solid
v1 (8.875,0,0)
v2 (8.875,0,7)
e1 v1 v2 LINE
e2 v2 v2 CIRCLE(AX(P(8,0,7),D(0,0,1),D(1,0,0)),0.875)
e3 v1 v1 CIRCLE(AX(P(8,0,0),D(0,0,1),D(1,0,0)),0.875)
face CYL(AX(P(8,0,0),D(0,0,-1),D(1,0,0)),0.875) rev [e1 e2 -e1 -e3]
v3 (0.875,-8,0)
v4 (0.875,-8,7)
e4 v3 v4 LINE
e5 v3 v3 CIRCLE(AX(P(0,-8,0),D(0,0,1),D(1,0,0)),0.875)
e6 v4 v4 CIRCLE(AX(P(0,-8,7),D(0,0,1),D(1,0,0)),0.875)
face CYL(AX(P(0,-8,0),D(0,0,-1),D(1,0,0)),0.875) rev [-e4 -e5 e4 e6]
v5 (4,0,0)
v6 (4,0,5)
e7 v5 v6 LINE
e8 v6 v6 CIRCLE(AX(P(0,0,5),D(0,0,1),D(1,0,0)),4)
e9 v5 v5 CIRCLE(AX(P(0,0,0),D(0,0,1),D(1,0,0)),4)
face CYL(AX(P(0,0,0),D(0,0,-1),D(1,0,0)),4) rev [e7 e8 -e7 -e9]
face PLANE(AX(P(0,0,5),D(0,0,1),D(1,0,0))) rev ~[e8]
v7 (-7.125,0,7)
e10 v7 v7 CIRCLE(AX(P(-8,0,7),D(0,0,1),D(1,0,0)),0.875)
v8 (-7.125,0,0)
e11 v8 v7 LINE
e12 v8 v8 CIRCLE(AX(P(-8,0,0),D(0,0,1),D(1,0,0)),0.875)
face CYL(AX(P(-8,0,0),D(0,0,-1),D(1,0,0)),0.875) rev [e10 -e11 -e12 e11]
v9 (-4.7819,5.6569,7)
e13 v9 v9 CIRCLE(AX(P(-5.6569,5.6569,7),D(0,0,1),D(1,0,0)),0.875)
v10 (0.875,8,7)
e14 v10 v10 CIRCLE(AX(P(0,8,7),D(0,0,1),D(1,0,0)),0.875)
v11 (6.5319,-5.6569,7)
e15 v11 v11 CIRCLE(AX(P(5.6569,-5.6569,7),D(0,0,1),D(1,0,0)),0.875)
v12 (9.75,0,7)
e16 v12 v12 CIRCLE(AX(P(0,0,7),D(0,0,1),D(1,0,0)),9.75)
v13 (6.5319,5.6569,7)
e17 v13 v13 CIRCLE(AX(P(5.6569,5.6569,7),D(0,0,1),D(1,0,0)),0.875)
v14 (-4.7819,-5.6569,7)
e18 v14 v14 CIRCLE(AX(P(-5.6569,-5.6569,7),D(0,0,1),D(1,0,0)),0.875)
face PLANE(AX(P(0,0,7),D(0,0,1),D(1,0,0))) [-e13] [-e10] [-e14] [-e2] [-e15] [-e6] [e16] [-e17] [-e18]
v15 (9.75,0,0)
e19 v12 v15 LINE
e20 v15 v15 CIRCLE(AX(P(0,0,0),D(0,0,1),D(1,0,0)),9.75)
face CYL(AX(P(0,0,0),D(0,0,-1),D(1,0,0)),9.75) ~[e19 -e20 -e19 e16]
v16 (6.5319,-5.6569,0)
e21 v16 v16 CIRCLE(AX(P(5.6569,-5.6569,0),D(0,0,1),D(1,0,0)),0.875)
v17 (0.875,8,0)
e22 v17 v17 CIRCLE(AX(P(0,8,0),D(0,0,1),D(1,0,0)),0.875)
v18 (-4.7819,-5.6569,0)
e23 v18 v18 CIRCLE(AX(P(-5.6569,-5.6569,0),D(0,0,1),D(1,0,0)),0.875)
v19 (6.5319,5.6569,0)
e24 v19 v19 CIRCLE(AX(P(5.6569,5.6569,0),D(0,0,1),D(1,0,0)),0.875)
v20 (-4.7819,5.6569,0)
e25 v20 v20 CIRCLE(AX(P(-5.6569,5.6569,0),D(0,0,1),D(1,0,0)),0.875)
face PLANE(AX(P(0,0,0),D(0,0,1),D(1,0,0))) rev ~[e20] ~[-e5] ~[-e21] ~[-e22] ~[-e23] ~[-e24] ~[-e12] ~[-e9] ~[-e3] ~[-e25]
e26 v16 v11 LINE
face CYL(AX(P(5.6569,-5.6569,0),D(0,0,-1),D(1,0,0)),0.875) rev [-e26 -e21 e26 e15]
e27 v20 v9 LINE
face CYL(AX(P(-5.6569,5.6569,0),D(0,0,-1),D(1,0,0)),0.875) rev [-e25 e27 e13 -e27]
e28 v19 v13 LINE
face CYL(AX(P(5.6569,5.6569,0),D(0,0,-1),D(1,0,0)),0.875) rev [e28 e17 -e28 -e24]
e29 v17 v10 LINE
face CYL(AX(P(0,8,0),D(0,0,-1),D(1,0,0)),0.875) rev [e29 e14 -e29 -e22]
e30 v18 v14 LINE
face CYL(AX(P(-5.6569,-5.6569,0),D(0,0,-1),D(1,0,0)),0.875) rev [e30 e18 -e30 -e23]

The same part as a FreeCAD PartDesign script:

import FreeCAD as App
import Part
import Sketcher

V = App.Vector

doc = App.newDocument("Part")
body = doc.addObject("PartDesign::Body", "Body")

# Sketch on XY plane
sketch1 = body.newObject("Sketcher::SketchObject", "Sketch")
sketch1.AttachmentSupport = (doc.getObject("XY_Plane"), [""])
sketch1.MapMode = "FlatFace"
sketch1.addGeometry(Part.Circle(V(0, 0, 0), V(0, 0, 1), 9.8), False)
sketch1.addGeometry(Part.Circle(V(-5.7, -5.7, 0), V(0, 0, 1), 0.9), False)
sketch1.addGeometry(Part.Circle(V(0, -8, 0), V(0, 0, 1), 0.9), False)
sketch1.addGeometry(Part.Circle(V(5.7, -5.7, 0), V(0, 0, 1), 0.9), False)
sketch1.addGeometry(Part.Circle(V(-8, 0, 0), V(0, 0, 1), 0.9), False)
sketch1.addGeometry(Part.Circle(V(-5.7, 5.7, 0), V(0, 0, 1), 0.9), False)
sketch1.addGeometry(Part.Circle(V(0, 0, 0), V(0, 0, 1), 4), False)
sketch1.addGeometry(Part.Circle(V(8, 0, 0), V(0, 0, 1), 0.9), False)
sketch1.addGeometry(Part.Circle(V(0, 8, 0), V(0, 0, 1), 0.9), False)
sketch1.addGeometry(Part.Circle(V(5.7, 5.7, 0), V(0, 0, 1), 0.9), False)
sketch1.addConstraint(Sketcher.Constraint("Coincident", 0, 3, -1, 1))
sketch1.addConstraint(Sketcher.Constraint("Coincident", 6, 3, -1, 1))
sketch1.addConstraint(Sketcher.Constraint("Equal", 1, 2))
sketch1.addConstraint(Sketcher.Constraint("Equal", 2, 3))
sketch1.addConstraint(Sketcher.Constraint("Equal", 3, 4))
sketch1.addConstraint(Sketcher.Constraint("Equal", 4, 5))
sketch1.addConstraint(Sketcher.Constraint("Equal", 5, 7))
sketch1.addConstraint(Sketcher.Constraint("Equal", 7, 8))
sketch1.addConstraint(Sketcher.Constraint("Equal", 8, 9))
sketch1.addConstraint(Sketcher.Constraint("Symmetric", 3, 3, 5, 3, -1, 1))
sketch1.addConstraint(Sketcher.Constraint("Symmetric", 4, 3, 7, 3, -1, 1))
sketch1.addConstraint(Sketcher.Constraint("Symmetric", 2, 3, 8, 3, -1, 1))
sketch1.addConstraint(Sketcher.Constraint("Symmetric", 1, 3, 9, 3, -1, 1))
sketch1.addConstraint(Sketcher.Constraint("Symmetric", 1, 3, 3, 3, -2))
sketch1.addConstraint(Sketcher.Constraint("PointOnObject", 2, 3, -2))
sketch1.addConstraint(Sketcher.Constraint("PointOnObject", 4, 3, -1))
sketch1.addConstraint(Sketcher.Constraint("Diameter", 6, 8.0))
sketch1.addConstraint(Sketcher.Constraint("Diameter", 0, 19.5))
sketch1.addConstraint(Sketcher.Constraint("Diameter", 1, 1.75))
sketch1.addConstraint(Sketcher.Constraint("DistanceY", 2, 3, -1, 1, 8.0))
sketch1.addConstraint(Sketcher.Constraint("DistanceX", 4, 3, -1, 1, 8.0))
sketch1.addConstraint(Sketcher.Constraint("DistanceX", 1, 3, -1, 1, 5.657))
sketch1.addConstraint(Sketcher.Constraint("DistanceY", 1, 3, -1, 1, 5.657))
pad1 = body.newObject("PartDesign::Pad", "Pad")
pad1.Profile = sketch1
pad1.Length = 5

# Sketch on XY plane
sketch2 = body.newObject("Sketcher::SketchObject", "Sketch001")
sketch2.AttachmentSupport = (doc.getObject("XY_Plane"), [""])
sketch2.MapMode = "FlatFace"
sketch2.AttachmentOffset = App.Placement(V(0, 0, 5), App.Rotation())
sketch2.addGeometry(Part.Circle(V(0, 0, 0), V(0, 0, 1), 9.8), False)
sketch2.addGeometry(Part.Circle(V(-5.7, -5.7, 0), V(0, 0, 1), 0.9), False)
sketch2.addGeometry(Part.Circle(V(0, -8, 0), V(0, 0, 1), 0.9), False)
sketch2.addGeometry(Part.Circle(V(5.7, -5.7, 0), V(0, 0, 1), 0.9), False)
sketch2.addGeometry(Part.Circle(V(-8, 0, 0), V(0, 0, 1), 0.9), False)
sketch2.addGeometry(Part.Circle(V(-5.7, 5.7, 0), V(0, 0, 1), 0.9), False)
sketch2.addGeometry(Part.Circle(V(8, 0, 0), V(0, 0, 1), 0.9), False)
sketch2.addGeometry(Part.Circle(V(0, 8, 0), V(0, 0, 1), 0.9), False)
sketch2.addGeometry(Part.Circle(V(5.7, 5.7, 0), V(0, 0, 1), 0.9), False)
sketch2.addConstraint(Sketcher.Constraint("Coincident", 0, 3, -1, 1))
sketch2.addConstraint(Sketcher.Constraint("Equal", 1, 2))
sketch2.addConstraint(Sketcher.Constraint("Equal", 2, 3))
sketch2.addConstraint(Sketcher.Constraint("Equal", 3, 4))
sketch2.addConstraint(Sketcher.Constraint("Equal", 4, 5))
sketch2.addConstraint(Sketcher.Constraint("Equal", 5, 6))
sketch2.addConstraint(Sketcher.Constraint("Equal", 6, 7))
sketch2.addConstraint(Sketcher.Constraint("Equal", 7, 8))
sketch2.addConstraint(Sketcher.Constraint("Symmetric", 3, 3, 5, 3, -1, 1))
sketch2.addConstraint(Sketcher.Constraint("Symmetric", 4, 3, 6, 3, -1, 1))
sketch2.addConstraint(Sketcher.Constraint("Symmetric", 2, 3, 7, 3, -1, 1))
sketch2.addConstraint(Sketcher.Constraint("Symmetric", 1, 3, 8, 3, -1, 1))
sketch2.addConstraint(Sketcher.Constraint("Symmetric", 1, 3, 3, 3, -2))
sketch2.addConstraint(Sketcher.Constraint("PointOnObject", 2, 3, -2))
sketch2.addConstraint(Sketcher.Constraint("PointOnObject", 4, 3, -1))
sketch2.addConstraint(Sketcher.Constraint("Diameter", 0, 19.5))
sketch2.addConstraint(Sketcher.Constraint("Diameter", 1, 1.75))
sketch2.addConstraint(Sketcher.Constraint("DistanceY", 2, 3, -1, 1, 8.0))
sketch2.addConstraint(Sketcher.Constraint("DistanceX", 4, 3, -1, 1, 8.0))
sketch2.addConstraint(Sketcher.Constraint("DistanceX", 1, 3, -1, 1, 5.657))
sketch2.addConstraint(Sketcher.Constraint("DistanceY", 1, 3, -1, 1, 5.657))
pad2 = body.newObject("PartDesign::Pad", "Pad001")
pad2.Profile = sketch2
pad2.Length = 2

doc.recompute()
